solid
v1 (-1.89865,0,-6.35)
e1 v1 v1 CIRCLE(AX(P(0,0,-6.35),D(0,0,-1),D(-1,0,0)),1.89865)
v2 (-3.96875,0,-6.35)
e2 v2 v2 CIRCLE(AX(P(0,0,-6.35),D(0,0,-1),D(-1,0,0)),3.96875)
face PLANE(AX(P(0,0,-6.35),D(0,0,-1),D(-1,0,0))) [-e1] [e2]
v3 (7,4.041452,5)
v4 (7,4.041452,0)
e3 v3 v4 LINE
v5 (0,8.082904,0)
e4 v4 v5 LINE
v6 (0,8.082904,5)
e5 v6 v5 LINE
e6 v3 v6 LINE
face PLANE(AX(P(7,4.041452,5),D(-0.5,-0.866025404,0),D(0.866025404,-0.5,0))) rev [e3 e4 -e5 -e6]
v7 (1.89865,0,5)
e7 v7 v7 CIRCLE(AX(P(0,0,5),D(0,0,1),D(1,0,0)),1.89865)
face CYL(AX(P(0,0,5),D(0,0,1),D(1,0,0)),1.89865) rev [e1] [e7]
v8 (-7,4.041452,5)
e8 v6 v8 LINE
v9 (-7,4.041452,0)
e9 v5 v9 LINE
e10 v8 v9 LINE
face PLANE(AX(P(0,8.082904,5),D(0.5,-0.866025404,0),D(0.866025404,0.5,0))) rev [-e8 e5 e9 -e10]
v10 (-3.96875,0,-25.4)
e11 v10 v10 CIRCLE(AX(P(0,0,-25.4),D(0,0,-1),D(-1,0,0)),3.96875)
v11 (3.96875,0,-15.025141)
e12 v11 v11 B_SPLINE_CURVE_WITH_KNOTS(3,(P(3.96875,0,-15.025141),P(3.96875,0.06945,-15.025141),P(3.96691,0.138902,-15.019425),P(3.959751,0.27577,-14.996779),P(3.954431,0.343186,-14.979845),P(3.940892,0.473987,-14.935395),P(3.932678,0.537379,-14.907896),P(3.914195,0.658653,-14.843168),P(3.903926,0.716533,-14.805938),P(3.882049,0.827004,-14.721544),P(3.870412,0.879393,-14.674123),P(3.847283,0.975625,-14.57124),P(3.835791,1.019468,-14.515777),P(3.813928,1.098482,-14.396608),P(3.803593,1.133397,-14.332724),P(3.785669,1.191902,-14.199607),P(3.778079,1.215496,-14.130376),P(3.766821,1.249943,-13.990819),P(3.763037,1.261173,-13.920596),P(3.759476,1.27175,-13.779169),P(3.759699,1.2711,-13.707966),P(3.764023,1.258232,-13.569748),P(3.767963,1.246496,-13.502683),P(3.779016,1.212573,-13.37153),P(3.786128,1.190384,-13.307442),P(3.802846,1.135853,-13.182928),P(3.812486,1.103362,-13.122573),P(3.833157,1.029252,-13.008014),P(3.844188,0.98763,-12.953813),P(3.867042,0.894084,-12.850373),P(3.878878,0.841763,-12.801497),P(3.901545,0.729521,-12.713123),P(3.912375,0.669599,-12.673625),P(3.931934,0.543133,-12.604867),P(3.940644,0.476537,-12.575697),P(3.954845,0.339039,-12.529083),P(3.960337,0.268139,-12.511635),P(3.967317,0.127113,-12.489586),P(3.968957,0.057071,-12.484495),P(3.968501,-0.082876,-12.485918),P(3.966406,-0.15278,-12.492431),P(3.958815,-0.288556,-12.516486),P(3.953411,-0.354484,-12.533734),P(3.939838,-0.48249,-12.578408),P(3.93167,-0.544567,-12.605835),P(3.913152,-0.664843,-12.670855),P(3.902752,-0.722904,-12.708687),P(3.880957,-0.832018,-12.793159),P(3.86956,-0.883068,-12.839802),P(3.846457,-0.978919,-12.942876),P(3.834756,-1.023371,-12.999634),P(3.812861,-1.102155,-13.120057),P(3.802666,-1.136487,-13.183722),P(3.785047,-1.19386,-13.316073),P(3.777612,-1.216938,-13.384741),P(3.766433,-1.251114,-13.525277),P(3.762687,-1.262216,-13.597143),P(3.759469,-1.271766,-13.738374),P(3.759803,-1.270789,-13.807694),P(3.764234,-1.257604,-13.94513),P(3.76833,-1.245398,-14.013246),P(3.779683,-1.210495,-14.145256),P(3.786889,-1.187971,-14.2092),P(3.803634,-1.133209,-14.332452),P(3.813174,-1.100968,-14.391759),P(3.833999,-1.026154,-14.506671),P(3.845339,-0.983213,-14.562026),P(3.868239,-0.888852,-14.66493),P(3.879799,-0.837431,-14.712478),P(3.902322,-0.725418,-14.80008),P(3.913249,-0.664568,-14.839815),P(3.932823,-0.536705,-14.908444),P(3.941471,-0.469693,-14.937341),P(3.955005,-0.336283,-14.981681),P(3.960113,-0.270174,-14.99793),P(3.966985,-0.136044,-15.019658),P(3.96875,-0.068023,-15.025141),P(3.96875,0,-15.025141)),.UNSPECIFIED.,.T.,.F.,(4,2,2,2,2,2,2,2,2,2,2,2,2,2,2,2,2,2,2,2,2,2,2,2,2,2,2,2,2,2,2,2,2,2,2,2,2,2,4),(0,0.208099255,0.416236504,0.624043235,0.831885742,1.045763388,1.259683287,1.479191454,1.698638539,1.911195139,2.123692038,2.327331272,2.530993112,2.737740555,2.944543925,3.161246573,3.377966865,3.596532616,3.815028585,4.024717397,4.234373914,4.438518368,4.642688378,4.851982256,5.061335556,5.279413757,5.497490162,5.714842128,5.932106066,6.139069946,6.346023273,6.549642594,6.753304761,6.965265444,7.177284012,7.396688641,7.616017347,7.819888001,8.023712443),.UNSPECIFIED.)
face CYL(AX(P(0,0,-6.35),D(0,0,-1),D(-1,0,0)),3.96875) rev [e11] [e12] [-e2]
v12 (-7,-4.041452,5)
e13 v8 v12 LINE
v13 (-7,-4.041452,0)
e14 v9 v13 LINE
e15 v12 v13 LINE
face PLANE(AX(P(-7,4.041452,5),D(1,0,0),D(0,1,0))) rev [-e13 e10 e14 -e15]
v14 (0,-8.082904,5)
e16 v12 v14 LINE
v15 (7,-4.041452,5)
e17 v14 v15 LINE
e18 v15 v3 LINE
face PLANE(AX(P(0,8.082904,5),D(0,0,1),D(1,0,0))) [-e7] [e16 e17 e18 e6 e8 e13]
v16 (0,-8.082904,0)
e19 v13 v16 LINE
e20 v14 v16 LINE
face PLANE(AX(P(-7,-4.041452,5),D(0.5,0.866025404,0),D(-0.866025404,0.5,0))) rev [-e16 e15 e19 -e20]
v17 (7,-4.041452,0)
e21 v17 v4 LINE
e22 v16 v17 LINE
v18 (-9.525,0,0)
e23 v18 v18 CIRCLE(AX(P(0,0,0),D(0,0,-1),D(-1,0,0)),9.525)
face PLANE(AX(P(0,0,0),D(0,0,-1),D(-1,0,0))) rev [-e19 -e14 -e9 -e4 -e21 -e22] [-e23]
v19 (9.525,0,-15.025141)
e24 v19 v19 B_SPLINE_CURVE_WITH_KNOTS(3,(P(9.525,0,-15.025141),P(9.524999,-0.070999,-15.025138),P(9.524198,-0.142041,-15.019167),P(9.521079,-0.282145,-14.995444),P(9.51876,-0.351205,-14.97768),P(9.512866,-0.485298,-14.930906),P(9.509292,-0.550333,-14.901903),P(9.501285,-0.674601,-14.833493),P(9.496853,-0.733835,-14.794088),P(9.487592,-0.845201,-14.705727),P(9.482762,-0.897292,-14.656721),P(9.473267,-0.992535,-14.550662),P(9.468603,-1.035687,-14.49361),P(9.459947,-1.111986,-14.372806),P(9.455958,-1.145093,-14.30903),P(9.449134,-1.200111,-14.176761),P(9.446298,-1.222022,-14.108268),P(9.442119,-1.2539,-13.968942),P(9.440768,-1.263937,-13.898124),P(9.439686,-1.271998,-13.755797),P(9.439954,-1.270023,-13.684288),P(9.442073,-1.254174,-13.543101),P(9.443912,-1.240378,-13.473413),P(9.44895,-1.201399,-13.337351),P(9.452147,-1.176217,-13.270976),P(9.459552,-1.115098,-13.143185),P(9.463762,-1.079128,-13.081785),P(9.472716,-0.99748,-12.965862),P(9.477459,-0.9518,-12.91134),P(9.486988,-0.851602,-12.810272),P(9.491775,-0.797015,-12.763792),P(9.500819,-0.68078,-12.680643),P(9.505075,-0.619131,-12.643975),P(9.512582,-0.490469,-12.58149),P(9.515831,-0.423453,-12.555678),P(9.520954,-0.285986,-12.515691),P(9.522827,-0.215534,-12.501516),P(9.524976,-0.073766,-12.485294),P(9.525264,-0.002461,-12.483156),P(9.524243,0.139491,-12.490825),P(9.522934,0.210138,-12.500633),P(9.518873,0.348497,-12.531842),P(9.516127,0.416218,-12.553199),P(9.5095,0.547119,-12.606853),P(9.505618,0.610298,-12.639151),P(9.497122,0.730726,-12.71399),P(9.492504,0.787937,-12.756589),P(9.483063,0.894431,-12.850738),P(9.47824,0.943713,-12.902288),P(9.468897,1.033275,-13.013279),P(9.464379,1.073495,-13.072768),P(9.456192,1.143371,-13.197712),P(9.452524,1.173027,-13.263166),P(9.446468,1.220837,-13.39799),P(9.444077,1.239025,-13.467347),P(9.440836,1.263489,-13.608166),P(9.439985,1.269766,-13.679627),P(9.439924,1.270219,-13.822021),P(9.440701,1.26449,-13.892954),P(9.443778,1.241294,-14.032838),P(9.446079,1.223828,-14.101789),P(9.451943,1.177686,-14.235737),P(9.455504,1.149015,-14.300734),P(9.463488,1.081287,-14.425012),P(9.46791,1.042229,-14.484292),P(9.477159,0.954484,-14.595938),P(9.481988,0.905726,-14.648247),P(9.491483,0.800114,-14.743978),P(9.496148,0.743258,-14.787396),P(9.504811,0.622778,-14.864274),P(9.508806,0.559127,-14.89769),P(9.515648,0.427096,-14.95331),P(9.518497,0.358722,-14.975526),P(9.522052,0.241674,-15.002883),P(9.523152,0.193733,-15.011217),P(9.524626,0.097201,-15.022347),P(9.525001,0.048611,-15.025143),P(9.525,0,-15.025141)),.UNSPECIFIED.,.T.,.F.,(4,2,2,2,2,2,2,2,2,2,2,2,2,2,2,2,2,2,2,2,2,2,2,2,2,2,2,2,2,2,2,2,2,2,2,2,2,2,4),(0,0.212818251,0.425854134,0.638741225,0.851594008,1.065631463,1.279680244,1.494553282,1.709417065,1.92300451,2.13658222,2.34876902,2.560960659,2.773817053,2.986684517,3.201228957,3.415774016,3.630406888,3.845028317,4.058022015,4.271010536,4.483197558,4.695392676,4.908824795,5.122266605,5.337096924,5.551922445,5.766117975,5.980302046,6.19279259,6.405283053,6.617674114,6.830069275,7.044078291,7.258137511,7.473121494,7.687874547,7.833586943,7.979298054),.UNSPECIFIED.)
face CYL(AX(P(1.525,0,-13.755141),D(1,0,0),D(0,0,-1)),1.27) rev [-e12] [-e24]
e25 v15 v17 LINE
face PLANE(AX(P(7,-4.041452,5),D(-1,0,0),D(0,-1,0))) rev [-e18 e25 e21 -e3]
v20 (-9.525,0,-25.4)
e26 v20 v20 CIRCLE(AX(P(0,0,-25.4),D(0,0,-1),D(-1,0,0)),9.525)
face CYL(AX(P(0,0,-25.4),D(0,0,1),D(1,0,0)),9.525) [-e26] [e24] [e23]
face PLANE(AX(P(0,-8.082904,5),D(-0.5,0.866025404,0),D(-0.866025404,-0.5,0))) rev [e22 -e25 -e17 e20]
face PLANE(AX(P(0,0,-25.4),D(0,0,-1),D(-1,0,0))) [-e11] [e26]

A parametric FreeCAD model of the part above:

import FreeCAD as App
import Part
import Sketcher

V = App.Vector
Q = App.Units.Quantity


def add_polygon(sketch, points):
    """Adds a closed chain of lines whose ends are joined by coincident constraints."""
    first, n = sketch.GeometryCount, len(points)
    for a, b in zip(points, points[1:] + points[:1]):
        sketch.addGeometry(Part.LineSegment(App.Vector(*a, 0), App.Vector(*b, 0)), False)
    for i in range(n):
        sketch.addConstraint(Sketcher.Constraint("Coincident", first + i, 2, first + (i + 1) % n, 1))

doc = App.newDocument("Part")
body = doc.addObject("PartDesign::Body", "Body")

# Sketch on XY plane
sketch1 = body.newObject("Sketcher::SketchObject", "Sketch")
sketch1.AttachmentSupport = (doc.getObject("XY_Plane"), [""])
sketch1.MapMode = "FlatFace"
add_polygon(sketch1, [(0, 8), (-7, 4), (-7, -4), (0, -8), (7, -4), (7, 4)])  # lines 0-5
sketch1.addConstraint([
    Sketcher.Constraint("Vertical", 1),
    Sketcher.Constraint("Vertical", 4),
    Sketcher.Constraint("Symmetric", 0, 2, 3, 2, -1, 1),
    Sketcher.Constraint("Symmetric", 2, 2, 5, 2, -1, 1),
    Sketcher.Constraint("PointOnObject", 2, 2, -2),
    Sketcher.Constraint("Parallel", 2, 5),
    Sketcher.Constraint("Horizontal", 1, 2, 3, 2),
    Sketcher.Constraint("Angle", 0, Q("-150 deg")),
    Sketcher.Constraint("DistanceX", 0, 2, -1, 1, 7.0),
    Sketcher.Constraint("DistanceY", 1, 2, 1, 1, 8.082904),
])
pad1 = body.newObject("PartDesign::Pad", "Pad")
pad1.Profile = sketch1
pad1.Length = 5

# Sketch on XY plane
sketch2 = body.newObject("Sketcher::SketchObject", "Sketch001")
sketch2.AttachmentSupport = (doc.getObject("XY_Plane"), [""])
sketch2.MapMode = "FlatFace"
sketch2.addGeometry(Part.Circle(V(0, 0, 0), V(0, 0, 1), 10), False)
sketch2.addConstraint([
    Sketcher.Constraint("Coincident", 0, 3, -1, 1),
    Sketcher.Constraint("Diameter", 0, Q("0.75 in")),
])
pad2 = body.newObject("PartDesign::Pad", "Pad001")
pad2.Profile = sketch2
pad2.Length = Q("1 in")
pad2.Reversed = True

# Sketch on XY plane
sketch3 = body.newObject("Sketcher::SketchObject", "Sketch002")
sketch3.AttachmentSupport = (doc.getObject("XY_Plane"), [""])
sketch3.MapMode = "FlatFace"
sketch3.AttachmentOffset = App.Placement(V(0, 0, -1 * 25.4), App.Rotation())
sketch3.addGeometry(Part.Circle(V(0, 0, 0), V(0, 0, 1), 4), False)
sketch3.addConstraint([
    Sketcher.Constraint("Coincident", 0, 3, -1, 1),
    Sketcher.Constraint("Diameter", 0, Q("0.3125 in")),
])
pocket1 = body.newObject("PartDesign::Pocket", "Pocket")
pocket1.Profile = sketch3
pocket1.Length = Q("0.75 in")
pocket1.Reversed = True

# Sketch on XY plane
sketch4 = body.newObject("Sketcher::SketchObject", "Sketch003")
sketch4.AttachmentSupport = (doc.getObject("XY_Plane"), [""])
sketch4.MapMode = "FlatFace"
sketch4.AttachmentOffset = App.Placement(V(0, 0, 5), App.Rotation())
sketch4.addGeometry(Part.Circle(V(0, 0, 0), V(0, 0, 1), 1.3), False)
sketch4.addConstraint([
    Sketcher.Constraint("Coincident", 0, 3, -1, 1),
    Sketcher.Constraint("Diameter", 0, Q("0.1 in")),
])
pocket2 = body.newObject("PartDesign::Pocket", "Pocket001")
pocket2.Profile = sketch4
pocket2.Length = Q("0.75 in")

# Sketch on XY plane
sketch5 = body.newObject("Sketcher::SketchObject", "Sketch004")
sketch5.AttachmentSupport = (doc.getObject("XY_Plane"), [""])
sketch5.MapMode = "FlatFace"
sketch5.AttachmentOffset = App.Placement(V(0, 0, 5), App.Rotation())
sketch5.addGeometry(Part.Circle(V(0, 0, 0), V(0, 0, 1), 1.9), False)
sketch5.addConstraint([
    Sketcher.Constraint("Coincident", 0, 3, -1, 1),
    Sketcher.Constraint("Diameter", 0, Q("0.1495 in")),
])
doc.recompute()
hole = body.newObject("PartDesign::Hole", "Hole")
hole.Profile = sketch5
hole.ThreadType = "None"
hole.Diameter = Q("0.1495 in")
hole.DepthType = "Dimension"
hole.Depth = 14.95
hole.DrillPoint = "Angled"
hole.DrillPointAngle = 118

# Sketch on YZ plane
sketch6 = body.newObject("Sketcher::SketchObject", "Sketch005")
sketch6.AttachmentSupport = (doc.getObject("YZ_Plane"), [""])
sketch6.MapMode = "FlatFace"
sketch6.AttachmentOffset = App.Placement(V(0, 0, 0.375 * 25.4), App.Rotation())
sketch6.addGeometry(Part.Circle(V(0, -13.8, 0), V(0, 0, 1), 1.3), False)
sketch6.addConstraint([
    Sketcher.Constraint("PointOnObject", 0, 3, -2),
    Sketcher.Constraint("Diameter", 0, Q("0.1 in")),
    Sketcher.Constraint("DistanceY", 0, 3, -1, 1, 13.755141),
])
pocket3 = body.newObject("PartDesign::Pocket", "Pocket002")
pocket3.Profile = sketch6
pocket3.Length = 8

doc.recompute()
